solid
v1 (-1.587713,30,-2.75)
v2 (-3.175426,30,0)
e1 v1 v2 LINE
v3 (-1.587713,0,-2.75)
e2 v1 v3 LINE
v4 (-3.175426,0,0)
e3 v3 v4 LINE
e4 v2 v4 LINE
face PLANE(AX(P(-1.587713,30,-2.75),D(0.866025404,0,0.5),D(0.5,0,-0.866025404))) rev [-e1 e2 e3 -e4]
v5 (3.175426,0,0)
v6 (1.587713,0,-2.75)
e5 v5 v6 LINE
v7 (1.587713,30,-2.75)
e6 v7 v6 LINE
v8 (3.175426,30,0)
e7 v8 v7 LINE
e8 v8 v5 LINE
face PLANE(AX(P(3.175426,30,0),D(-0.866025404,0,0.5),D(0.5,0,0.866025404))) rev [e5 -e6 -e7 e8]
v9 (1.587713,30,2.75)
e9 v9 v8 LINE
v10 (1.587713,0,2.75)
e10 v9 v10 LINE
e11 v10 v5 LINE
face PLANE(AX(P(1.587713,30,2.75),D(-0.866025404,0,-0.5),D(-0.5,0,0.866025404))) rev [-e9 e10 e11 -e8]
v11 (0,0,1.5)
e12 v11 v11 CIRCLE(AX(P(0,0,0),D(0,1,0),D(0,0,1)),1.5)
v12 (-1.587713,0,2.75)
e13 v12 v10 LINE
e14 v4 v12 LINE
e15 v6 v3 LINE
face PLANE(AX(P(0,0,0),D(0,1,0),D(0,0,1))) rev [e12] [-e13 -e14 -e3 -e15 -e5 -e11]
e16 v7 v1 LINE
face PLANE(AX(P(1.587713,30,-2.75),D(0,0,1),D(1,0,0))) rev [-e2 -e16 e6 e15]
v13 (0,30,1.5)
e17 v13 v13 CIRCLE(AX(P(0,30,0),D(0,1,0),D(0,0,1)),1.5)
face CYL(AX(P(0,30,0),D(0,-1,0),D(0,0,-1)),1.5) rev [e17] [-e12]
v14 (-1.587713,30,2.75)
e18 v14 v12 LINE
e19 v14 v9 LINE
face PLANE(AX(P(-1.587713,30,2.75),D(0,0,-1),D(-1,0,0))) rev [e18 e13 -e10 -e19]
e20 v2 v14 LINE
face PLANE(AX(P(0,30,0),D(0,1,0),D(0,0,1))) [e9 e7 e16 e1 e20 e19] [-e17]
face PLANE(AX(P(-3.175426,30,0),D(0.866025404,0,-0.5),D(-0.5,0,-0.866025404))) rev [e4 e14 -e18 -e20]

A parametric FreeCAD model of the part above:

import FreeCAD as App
import Part
import Sketcher

V = App.Vector
Q = App.Units.Quantity


def add_polygon(sketch, points):
    """Adds a closed chain of lines whose ends are joined by coincident constraints."""
    first, n = sketch.GeometryCount, len(points)
    for a, b in zip(points, points[1:] + points[:1]):
        sketch.addGeometry(Part.LineSegment(App.Vector(*a, 0), App.Vector(*b, 0)), False)
    for i in range(n):
        sketch.addConstraint(Sketcher.Constraint("Coincident", first + i, 2, first + (i + 1) % n, 1))

doc = App.newDocument("Part")
body = doc.addObject("PartDesign::Body", "Body")

# Sketch on XZ plane
sketch1 = doc.addObject("Sketcher::SketchObject", "Sketch")
body.addObject(sketch1)
sketch1.AttachmentSupport = (doc.XZ_Plane, [""])
sketch1.MapMode = "FlatFace"
add_polygon(sketch1, [(3.2, 0), (1.6, -2.8), (-1.6, -2.8), (-3.2, 0), (-1.6, 2.8), (1.6, 2.8)])  # lines 0-5
sketch1.addGeometry(Part.Circle(V(0, 0, 0), V(0, 0, 1), 1.5), False)  # 6
sketch1.addConstraint(Sketcher.Constraint("Horizontal", 1))
sketch1.addConstraint(Sketcher.Constraint("Horizontal", 4))
sketch1.addConstraint(Sketcher.Constraint("Coincident", 6, 3, -1, 1))
sketch1.addConstraint(Sketcher.Constraint("Symmetric", 0, 2, 3, 2, -1, 1))
sketch1.addConstraint(Sketcher.Constraint("Symmetric", 2, 2, 5, 2, -1, 1))
sketch1.addConstraint(Sketcher.Constraint("PointOnObject", 2, 2, -1))
sketch1.addConstraint(Sketcher.Constraint("Parallel", 2, 5))
sketch1.addConstraint(Sketcher.Constraint("Vertical", 1, 2, 3, 2))
sketch1.addConstraint(Sketcher.Constraint("Diameter", 6, Q("3 mm")))
sketch1.addConstraint(Sketcher.Constraint("Angle", 0, Q("-120 deg")))
sketch1.addConstraint(Sketcher.Constraint("DistanceY", 1, 2, 3, 2, Q("5.5 mm")))
sketch1.addConstraint(Sketcher.Constraint("DistanceX", 1, 2, 1, 1, Q("3.175426 mm")))
pad1 = doc.addObject("PartDesign::Pad", "Pad")
body.addObject(pad1)
pad1.Profile = sketch1
pad1.Length = 30
pad1.Reversed = True

doc.recompute()
